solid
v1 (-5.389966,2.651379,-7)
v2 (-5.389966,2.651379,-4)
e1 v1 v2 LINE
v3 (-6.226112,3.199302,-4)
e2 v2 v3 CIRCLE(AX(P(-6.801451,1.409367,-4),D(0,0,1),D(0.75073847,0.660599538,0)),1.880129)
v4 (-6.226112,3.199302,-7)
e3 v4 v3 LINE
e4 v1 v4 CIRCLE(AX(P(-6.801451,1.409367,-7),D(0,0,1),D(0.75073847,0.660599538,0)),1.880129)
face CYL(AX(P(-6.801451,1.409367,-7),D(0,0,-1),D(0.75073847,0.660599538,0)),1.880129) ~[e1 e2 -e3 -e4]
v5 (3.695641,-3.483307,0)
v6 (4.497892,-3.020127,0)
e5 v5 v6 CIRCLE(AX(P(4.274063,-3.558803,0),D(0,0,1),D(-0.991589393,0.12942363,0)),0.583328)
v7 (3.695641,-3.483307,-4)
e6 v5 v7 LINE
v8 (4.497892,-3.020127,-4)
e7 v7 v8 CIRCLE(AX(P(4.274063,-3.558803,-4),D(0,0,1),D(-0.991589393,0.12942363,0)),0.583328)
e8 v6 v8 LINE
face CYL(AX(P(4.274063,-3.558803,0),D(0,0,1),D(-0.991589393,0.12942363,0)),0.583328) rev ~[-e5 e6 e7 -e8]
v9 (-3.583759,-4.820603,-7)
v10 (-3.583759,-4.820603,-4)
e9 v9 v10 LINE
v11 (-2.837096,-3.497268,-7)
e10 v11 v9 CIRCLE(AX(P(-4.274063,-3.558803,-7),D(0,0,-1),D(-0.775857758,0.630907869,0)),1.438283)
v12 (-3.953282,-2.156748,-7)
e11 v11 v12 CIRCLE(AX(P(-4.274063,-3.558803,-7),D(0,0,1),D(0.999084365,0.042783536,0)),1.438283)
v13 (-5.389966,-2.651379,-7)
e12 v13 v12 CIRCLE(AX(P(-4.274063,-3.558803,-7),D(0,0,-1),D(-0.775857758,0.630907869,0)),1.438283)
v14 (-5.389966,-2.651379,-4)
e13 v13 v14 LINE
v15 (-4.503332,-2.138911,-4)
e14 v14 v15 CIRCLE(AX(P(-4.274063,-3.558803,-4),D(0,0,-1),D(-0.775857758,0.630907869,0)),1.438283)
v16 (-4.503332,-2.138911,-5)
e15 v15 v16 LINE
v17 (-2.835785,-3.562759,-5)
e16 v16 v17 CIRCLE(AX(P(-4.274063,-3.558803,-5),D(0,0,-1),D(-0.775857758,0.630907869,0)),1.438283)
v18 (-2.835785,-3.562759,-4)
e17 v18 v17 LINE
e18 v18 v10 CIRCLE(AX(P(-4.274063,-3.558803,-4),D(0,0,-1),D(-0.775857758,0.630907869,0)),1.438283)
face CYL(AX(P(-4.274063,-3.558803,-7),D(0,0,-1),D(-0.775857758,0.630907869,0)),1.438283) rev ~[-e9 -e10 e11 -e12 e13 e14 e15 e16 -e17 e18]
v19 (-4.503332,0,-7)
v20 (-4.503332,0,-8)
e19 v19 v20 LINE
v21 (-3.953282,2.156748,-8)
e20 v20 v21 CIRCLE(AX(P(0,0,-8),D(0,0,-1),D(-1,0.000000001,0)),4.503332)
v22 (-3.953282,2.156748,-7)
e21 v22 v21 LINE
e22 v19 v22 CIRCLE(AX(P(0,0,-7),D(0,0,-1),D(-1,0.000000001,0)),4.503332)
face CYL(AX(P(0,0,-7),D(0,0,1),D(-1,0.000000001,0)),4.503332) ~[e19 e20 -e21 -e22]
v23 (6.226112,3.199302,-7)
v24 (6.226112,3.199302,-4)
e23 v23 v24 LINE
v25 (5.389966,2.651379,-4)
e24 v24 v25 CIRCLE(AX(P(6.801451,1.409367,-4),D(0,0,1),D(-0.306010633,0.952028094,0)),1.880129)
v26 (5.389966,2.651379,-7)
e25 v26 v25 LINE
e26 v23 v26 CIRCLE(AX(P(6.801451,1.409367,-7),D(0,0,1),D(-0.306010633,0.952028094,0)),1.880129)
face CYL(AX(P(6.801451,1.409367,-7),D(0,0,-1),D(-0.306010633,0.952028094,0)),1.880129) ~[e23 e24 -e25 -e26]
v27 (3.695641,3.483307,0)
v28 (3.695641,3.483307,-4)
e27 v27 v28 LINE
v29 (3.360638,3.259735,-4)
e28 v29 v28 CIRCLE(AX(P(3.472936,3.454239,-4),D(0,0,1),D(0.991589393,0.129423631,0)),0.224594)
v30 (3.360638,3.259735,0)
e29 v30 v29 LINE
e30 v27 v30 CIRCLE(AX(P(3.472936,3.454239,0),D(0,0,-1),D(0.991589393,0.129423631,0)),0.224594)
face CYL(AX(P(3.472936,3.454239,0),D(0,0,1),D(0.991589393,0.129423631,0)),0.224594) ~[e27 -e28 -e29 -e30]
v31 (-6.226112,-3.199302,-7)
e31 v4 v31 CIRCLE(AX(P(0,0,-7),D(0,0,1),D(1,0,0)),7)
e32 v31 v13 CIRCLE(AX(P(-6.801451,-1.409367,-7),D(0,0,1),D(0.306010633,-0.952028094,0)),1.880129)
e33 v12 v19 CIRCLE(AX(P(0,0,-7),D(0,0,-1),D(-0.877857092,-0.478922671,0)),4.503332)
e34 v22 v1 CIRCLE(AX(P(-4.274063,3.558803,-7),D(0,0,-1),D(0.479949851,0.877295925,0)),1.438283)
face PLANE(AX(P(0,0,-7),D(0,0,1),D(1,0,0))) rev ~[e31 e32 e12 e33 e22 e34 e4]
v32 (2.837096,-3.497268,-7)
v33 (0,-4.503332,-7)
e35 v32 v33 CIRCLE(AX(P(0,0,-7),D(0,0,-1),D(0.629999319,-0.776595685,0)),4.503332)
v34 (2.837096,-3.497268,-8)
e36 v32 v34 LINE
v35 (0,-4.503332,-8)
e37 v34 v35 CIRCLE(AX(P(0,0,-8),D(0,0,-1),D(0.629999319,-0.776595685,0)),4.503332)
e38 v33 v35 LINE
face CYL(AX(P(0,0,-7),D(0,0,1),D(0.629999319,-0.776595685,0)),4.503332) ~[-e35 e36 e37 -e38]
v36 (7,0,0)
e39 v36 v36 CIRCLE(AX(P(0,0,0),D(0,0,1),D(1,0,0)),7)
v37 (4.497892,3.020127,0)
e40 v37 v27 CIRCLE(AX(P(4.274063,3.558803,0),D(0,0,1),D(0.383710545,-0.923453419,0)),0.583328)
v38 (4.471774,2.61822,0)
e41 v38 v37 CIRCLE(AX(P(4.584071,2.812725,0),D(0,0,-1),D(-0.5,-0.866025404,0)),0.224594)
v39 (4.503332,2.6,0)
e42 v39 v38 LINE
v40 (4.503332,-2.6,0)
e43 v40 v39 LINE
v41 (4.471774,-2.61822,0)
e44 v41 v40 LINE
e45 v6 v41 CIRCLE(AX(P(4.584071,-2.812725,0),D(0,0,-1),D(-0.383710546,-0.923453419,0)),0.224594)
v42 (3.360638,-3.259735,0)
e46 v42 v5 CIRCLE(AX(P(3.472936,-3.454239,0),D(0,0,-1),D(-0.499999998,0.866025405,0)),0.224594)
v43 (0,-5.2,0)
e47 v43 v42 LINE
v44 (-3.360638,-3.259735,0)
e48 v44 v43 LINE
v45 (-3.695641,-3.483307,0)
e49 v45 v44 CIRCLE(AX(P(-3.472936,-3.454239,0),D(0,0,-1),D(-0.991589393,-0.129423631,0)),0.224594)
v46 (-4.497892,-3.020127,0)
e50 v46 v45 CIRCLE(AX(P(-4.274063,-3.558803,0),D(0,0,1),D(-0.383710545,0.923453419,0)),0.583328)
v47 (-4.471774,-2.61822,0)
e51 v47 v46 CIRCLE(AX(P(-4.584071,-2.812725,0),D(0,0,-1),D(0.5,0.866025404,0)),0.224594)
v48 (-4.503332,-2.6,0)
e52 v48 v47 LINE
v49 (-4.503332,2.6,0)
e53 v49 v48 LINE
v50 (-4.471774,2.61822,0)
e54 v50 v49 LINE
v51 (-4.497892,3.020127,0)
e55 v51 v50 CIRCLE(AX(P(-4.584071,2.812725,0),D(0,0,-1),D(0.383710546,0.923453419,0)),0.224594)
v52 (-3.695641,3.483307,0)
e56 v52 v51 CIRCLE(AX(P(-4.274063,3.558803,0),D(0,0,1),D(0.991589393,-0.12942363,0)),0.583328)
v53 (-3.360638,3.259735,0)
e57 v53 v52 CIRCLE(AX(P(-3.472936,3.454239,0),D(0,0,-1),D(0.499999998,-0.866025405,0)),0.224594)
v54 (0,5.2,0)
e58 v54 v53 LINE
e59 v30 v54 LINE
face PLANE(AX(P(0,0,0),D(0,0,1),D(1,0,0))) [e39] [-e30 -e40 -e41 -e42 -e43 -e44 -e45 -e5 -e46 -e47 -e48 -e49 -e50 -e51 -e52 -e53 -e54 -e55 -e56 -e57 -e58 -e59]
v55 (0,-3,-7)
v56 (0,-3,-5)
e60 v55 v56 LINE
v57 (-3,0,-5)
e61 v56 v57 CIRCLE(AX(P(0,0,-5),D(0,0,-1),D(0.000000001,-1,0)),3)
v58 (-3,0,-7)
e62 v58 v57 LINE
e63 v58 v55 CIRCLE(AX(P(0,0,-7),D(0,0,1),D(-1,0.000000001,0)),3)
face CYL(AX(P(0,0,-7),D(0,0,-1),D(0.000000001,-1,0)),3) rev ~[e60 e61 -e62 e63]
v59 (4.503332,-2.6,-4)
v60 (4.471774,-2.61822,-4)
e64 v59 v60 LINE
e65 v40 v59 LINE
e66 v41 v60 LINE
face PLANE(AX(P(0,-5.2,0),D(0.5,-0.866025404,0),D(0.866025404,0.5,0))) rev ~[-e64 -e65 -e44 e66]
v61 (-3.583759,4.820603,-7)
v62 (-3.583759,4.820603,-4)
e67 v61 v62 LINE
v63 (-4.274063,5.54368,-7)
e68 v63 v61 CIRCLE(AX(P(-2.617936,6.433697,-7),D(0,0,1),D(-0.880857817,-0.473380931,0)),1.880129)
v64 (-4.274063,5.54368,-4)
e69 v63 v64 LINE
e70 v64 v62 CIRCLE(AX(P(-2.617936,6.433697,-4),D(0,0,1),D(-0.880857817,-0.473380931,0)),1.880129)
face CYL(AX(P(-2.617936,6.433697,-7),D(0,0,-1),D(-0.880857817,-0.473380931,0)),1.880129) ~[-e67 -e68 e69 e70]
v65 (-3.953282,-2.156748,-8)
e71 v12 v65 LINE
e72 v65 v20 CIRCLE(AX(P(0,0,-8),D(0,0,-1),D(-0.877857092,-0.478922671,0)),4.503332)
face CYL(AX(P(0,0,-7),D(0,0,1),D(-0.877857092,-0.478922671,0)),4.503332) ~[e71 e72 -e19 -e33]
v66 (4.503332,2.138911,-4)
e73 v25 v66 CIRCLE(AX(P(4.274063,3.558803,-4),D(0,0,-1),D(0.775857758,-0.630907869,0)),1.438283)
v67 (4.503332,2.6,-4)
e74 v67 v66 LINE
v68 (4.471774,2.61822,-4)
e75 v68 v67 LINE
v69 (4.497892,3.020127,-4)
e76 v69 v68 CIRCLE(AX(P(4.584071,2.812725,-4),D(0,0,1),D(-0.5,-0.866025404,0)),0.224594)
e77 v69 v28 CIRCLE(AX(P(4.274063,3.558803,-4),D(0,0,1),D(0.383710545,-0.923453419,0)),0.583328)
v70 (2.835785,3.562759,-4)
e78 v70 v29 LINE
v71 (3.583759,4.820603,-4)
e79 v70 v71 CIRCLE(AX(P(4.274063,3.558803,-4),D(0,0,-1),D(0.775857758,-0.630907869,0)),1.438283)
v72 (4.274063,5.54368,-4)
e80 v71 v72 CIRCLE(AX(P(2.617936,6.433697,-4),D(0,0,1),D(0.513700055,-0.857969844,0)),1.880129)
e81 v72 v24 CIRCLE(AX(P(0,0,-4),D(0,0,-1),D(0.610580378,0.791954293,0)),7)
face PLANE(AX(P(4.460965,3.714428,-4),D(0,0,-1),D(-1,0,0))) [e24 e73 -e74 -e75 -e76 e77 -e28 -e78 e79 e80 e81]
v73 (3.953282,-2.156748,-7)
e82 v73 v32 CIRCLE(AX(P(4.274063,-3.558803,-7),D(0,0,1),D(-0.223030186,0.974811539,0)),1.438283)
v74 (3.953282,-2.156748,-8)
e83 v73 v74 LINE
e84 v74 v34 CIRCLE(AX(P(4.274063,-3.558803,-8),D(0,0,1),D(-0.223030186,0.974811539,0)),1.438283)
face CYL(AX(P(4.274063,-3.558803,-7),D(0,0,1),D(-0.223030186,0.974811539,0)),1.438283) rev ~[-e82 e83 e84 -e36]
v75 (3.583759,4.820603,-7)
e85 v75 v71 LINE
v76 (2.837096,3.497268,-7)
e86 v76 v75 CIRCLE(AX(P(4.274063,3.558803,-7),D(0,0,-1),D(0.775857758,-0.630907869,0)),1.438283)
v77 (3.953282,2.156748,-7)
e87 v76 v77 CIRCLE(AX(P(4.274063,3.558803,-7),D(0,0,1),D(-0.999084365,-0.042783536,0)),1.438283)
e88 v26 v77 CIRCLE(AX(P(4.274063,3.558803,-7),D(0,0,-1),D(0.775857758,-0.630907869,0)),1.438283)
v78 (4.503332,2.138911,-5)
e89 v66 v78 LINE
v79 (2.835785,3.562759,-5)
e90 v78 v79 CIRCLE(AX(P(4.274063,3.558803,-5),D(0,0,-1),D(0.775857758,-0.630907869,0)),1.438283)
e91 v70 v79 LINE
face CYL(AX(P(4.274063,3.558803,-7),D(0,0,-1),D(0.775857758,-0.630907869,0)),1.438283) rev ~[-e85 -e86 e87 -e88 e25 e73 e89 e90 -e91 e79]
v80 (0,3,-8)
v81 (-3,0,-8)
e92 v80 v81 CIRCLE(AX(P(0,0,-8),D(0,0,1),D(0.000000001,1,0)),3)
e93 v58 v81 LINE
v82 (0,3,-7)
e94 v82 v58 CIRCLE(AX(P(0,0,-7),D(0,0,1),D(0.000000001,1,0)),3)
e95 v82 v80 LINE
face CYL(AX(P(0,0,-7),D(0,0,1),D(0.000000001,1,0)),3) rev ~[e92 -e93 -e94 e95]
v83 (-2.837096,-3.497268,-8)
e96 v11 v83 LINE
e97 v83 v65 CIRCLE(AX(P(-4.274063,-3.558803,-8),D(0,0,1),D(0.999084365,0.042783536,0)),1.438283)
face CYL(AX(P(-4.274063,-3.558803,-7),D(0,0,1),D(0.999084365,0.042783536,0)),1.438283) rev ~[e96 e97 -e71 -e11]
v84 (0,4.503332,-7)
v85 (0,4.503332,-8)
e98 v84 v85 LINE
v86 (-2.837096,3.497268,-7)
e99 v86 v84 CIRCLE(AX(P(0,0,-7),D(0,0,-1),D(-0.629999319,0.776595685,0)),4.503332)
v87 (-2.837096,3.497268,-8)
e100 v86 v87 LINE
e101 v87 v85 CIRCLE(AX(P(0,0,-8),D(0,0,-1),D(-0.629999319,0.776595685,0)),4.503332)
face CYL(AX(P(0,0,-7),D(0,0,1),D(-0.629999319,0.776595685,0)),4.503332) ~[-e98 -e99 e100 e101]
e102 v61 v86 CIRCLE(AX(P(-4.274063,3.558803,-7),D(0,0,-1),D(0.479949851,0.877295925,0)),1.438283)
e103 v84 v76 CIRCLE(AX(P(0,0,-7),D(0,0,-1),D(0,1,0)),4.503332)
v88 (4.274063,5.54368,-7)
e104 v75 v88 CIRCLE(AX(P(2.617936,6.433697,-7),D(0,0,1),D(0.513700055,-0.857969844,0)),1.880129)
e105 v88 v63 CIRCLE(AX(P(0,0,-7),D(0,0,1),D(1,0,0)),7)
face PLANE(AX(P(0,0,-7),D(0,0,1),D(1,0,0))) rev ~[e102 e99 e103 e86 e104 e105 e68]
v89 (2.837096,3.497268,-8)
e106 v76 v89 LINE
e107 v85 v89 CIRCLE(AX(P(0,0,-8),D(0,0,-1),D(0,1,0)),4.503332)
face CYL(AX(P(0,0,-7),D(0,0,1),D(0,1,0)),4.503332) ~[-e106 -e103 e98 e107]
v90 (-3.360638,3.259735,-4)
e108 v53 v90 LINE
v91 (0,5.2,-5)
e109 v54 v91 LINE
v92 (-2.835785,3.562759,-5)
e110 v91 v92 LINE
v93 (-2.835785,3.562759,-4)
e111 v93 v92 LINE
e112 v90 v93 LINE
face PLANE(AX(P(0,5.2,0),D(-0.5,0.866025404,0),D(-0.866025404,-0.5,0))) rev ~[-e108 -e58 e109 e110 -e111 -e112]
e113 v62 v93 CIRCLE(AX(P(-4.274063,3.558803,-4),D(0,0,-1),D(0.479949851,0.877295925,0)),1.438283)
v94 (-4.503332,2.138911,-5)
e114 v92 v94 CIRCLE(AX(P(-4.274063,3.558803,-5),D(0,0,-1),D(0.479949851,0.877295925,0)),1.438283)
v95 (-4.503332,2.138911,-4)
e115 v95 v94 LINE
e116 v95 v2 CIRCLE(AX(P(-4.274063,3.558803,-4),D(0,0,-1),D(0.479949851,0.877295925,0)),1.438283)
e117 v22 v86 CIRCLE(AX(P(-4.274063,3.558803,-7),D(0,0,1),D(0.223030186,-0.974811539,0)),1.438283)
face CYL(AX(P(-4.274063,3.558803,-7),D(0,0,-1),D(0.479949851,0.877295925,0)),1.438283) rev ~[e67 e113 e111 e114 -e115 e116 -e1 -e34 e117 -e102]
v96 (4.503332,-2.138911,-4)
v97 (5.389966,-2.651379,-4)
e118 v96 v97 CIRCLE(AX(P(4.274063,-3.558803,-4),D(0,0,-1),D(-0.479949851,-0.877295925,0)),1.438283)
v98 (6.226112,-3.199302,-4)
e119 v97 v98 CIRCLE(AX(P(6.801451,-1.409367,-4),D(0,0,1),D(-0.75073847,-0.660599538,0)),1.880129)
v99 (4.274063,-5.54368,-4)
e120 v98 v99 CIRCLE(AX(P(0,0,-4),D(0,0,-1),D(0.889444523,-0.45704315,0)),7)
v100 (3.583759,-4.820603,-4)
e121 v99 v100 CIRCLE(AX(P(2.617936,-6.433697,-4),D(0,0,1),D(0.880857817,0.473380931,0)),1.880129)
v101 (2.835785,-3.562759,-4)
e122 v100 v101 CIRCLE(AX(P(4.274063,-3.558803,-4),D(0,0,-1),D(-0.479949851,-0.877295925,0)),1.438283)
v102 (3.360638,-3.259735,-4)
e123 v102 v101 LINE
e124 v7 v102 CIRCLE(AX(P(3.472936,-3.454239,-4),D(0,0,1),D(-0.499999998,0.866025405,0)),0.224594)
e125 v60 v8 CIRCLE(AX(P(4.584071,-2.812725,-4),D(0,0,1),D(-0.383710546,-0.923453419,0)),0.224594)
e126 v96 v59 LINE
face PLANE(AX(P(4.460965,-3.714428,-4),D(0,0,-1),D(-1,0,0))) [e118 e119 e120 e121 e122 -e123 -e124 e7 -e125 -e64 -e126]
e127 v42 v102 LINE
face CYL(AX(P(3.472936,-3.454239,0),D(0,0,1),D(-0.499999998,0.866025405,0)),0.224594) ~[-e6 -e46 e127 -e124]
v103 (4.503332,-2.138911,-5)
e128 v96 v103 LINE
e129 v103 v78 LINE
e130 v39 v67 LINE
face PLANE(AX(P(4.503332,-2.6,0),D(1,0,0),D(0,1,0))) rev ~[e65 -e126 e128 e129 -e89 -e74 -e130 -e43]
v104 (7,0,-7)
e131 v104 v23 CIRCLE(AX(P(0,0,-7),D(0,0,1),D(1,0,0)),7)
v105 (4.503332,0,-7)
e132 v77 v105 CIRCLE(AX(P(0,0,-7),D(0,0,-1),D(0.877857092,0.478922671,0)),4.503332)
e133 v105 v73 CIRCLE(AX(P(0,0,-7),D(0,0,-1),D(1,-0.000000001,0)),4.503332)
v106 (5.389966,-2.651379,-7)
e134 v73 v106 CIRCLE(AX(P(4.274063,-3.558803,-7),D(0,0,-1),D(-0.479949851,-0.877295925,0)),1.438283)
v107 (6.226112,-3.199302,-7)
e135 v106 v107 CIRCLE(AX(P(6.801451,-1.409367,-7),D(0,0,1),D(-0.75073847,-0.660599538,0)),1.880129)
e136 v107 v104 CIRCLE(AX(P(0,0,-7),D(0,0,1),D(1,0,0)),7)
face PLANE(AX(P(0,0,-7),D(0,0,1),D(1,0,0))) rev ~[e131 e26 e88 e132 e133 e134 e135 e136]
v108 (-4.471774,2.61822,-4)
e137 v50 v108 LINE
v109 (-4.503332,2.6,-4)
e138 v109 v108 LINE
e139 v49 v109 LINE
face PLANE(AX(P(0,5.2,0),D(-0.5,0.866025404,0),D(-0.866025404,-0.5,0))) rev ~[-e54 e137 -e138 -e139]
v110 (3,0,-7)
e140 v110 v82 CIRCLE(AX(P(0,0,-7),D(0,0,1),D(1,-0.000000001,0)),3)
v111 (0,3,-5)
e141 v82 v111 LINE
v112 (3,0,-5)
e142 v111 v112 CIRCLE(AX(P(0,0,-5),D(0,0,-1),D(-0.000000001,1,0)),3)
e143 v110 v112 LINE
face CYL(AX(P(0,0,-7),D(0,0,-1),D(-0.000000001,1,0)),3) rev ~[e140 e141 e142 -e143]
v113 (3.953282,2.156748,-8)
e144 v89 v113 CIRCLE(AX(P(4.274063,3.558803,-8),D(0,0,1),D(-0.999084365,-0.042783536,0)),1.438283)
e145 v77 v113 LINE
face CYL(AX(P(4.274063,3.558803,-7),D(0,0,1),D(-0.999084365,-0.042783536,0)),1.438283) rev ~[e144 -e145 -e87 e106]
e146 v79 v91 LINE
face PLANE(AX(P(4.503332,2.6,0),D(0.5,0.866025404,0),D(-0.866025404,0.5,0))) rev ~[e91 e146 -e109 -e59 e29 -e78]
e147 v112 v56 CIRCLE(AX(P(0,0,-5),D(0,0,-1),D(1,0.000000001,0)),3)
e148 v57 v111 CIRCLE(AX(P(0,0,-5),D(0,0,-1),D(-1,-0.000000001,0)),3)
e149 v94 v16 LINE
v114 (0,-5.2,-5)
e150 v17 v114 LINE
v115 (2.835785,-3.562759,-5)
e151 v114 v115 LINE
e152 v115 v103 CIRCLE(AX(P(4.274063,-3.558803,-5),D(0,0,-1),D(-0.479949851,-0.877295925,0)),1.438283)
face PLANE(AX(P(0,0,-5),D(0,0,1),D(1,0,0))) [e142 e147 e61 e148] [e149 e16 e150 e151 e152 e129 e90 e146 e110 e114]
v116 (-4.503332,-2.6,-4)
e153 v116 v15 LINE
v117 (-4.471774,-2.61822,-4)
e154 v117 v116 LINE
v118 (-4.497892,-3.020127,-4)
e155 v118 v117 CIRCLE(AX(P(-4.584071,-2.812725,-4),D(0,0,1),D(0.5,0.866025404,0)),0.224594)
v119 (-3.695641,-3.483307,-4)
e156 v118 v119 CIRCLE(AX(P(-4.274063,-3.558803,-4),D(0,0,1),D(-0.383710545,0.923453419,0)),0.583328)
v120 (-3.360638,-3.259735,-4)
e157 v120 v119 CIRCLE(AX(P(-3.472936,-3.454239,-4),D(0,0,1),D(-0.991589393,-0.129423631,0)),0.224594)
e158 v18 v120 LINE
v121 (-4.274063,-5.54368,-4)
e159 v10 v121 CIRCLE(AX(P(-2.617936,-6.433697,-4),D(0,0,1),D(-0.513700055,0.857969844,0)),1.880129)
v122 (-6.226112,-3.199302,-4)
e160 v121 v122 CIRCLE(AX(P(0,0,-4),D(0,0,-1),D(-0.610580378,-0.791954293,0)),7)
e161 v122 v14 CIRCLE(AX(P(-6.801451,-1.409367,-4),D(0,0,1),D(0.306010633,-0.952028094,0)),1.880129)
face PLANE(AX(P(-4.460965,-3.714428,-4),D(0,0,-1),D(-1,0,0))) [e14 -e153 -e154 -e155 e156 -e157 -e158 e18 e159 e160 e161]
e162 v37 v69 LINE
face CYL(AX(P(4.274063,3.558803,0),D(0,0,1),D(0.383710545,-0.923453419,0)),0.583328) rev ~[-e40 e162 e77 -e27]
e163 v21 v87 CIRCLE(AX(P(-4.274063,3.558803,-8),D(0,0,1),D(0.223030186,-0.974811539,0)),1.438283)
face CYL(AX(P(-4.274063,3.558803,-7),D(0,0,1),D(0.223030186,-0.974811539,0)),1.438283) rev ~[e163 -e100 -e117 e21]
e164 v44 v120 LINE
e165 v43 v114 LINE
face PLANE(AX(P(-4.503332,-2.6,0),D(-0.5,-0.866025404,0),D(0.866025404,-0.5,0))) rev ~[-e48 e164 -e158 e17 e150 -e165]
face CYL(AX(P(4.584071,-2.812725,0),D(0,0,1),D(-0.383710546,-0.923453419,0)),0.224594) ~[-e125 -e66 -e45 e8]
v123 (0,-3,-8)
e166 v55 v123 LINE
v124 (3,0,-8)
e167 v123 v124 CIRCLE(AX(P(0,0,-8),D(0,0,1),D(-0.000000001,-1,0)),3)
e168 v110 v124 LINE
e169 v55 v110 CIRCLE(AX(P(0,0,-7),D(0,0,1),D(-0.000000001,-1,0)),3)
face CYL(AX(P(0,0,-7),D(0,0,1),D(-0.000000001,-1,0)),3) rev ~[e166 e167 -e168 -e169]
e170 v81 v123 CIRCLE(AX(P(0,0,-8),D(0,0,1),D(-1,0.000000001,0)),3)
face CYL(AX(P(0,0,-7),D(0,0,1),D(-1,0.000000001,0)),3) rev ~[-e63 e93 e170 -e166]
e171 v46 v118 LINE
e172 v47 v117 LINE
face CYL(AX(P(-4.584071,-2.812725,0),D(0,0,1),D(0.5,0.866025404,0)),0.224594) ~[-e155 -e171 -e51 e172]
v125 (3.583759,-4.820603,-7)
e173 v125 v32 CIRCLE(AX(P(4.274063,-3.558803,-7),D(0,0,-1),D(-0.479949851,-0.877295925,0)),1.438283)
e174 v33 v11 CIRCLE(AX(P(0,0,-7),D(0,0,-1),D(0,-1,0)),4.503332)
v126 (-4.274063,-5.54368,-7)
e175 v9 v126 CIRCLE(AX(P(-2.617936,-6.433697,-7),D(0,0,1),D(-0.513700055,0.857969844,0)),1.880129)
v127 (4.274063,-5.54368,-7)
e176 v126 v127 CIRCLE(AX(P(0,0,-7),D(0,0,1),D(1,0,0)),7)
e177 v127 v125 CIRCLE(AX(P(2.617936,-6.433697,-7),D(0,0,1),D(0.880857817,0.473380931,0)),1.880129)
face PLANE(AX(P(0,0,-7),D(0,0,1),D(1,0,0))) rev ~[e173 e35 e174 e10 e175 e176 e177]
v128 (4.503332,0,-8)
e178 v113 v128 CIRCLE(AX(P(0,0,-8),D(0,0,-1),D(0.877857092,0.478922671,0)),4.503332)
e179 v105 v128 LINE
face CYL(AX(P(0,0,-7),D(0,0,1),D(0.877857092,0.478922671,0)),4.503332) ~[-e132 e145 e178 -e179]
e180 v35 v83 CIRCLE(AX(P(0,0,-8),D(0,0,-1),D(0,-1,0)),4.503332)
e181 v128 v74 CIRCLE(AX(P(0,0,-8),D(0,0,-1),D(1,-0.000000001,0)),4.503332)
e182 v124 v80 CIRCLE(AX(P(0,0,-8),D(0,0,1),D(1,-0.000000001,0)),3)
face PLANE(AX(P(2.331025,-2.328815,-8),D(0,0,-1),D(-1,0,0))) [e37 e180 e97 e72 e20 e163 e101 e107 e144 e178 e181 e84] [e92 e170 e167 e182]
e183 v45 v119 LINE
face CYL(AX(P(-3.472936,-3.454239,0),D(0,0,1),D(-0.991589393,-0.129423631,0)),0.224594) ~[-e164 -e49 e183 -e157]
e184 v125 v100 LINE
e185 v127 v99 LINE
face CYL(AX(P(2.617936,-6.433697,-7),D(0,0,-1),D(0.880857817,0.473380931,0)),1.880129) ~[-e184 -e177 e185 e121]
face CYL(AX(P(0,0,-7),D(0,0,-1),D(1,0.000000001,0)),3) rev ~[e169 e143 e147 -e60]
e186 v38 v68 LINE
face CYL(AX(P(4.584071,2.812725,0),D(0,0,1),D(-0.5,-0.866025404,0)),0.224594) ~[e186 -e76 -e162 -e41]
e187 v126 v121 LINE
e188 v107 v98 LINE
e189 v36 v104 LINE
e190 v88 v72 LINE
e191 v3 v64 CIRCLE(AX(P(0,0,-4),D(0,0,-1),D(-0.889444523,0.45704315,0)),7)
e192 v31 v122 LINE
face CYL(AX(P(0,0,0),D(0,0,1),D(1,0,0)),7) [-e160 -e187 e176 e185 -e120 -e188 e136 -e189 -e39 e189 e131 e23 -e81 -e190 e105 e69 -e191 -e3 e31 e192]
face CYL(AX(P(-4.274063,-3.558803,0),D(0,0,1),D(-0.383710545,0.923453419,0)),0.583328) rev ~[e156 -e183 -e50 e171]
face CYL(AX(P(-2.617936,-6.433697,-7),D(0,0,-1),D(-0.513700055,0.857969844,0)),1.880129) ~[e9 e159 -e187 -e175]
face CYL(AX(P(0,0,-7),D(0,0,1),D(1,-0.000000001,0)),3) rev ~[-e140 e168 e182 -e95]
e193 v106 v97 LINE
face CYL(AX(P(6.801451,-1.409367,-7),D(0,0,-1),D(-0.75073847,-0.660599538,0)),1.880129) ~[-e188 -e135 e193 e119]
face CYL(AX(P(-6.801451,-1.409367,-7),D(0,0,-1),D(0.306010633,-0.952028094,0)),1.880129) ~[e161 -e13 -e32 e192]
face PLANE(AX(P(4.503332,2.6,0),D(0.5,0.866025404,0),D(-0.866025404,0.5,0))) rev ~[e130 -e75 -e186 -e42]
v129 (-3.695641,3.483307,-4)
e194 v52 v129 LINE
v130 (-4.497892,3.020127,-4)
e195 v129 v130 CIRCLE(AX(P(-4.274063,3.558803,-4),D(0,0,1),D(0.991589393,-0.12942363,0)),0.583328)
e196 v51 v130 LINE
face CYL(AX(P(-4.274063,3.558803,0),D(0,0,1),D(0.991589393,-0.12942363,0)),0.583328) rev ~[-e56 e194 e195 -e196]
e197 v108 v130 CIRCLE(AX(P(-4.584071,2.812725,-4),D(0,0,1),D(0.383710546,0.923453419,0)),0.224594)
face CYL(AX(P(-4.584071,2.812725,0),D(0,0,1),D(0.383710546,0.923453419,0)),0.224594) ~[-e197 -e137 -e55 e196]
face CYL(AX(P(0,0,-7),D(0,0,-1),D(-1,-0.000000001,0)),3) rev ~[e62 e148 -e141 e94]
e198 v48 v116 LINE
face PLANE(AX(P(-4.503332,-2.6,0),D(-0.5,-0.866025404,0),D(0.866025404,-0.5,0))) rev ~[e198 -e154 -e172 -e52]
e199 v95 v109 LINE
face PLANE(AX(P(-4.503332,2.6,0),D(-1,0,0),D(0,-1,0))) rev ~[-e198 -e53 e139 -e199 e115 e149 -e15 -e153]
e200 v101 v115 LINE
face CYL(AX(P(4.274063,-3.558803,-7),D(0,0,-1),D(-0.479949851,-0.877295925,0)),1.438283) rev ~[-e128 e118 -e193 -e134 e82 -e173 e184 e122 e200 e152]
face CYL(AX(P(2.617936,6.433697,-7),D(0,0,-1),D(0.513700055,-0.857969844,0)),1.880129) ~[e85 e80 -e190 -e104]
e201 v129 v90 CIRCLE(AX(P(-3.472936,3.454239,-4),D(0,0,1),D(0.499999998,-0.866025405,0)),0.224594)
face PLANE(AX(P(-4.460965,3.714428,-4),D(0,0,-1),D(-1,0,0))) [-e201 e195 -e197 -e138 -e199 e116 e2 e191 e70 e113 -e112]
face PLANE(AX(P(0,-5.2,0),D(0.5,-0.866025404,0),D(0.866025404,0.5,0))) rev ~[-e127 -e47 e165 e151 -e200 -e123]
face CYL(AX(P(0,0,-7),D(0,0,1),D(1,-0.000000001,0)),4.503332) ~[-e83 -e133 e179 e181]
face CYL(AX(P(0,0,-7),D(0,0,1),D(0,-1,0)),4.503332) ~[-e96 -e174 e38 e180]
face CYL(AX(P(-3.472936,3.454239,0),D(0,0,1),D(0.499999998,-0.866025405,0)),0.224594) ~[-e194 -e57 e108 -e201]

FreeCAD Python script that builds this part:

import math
import FreeCAD as App
import Part
import Sketcher
Q = App.Units.Quantity


def add_polygon(sketch, points):
    """Adds a closed chain of lines whose ends are joined by coincident constraints."""
    first, n = sketch.GeometryCount, len(points)
    for a, b in zip(points, points[1:] + points[:1]):
        sketch.addGeometry(Part.LineSegment(App.Vector(*a, 0), App.Vector(*b, 0)), False)
    for i in range(n):
        sketch.addConstraint(Sketcher.Constraint("Coincident", first + i, 2, first + (i + 1) % n, 1))

doc = App.newDocument("Part")
body = doc.addObject("PartDesign::Body", "Body")

sketch1 = doc.addObject("Sketcher::SketchObject", "Sketch")
body.addObject(sketch1)
sketch1.AttachmentSupport = (doc.XY_Plane, [""])
sketch1.MapMode = "FlatFace"
sketch1.addGeometry(Part.Circle(App.Vector(0, 0, 0), App.Vector(0, 0, 1), 7), False)
sketch1.addConstraint([
    Sketcher.Constraint("Coincident", 0, 3, -1, 1),
    Sketcher.Constraint("Diameter", 0, 14.0),
])
pad1 = doc.addObject("PartDesign::Pad", "Pad")
body.addObject(pad1)
pad1.Profile = sketch1
pad1.Length = 7
pad1.Reversed = True

sketch2 = doc.addObject("Sketcher::SketchObject", "Sketch001")
body.addObject(sketch2)
sketch2.AttachmentSupport = (doc.XY_Plane, [""])
sketch2.MapMode = "FlatFace"
sketch2.AttachmentOffset = App.Placement(App.Vector(0, 0, -7), App.Rotation())
sketch2.addGeometry([
    Part.ArcOfCircle(Part.Circle(App.Vector(0, 0, 0), App.Vector(0, 0, 1), 4.503332), math.radians(151.384936), math.radians(180)),
    Part.ArcOfCircle(Part.Circle(App.Vector(-4.274063, 3.558803, 0), App.Vector(0, 0, 1), 1.438283), math.radians(-77.112927), math.radians(-2.452064)),
    Part.ArcOfCircle(Part.Circle(App.Vector(0, 0, 0), App.Vector(0, 0, 1), 4.503332), math.radians(90), math.radians(129.050072)),
    Part.ArcOfCircle(Part.Circle(App.Vector(0, 0, 0), App.Vector(0, 0, 1), 4.503332), math.radians(50.949928), math.radians(90)),
    Part.ArcOfCircle(Part.Circle(App.Vector(4.274063, 3.558803, 0), App.Vector(0, 0, 1), 1.438283), math.radians(-177.547936), math.radians(-102.887073)),
    Part.ArcOfCircle(Part.Circle(App.Vector(0, 0, 0), App.Vector(0, 0, 1), 4.503332), math.radians(0), math.radians(28.615064)),
    Part.ArcOfCircle(Part.Circle(App.Vector(0, 0, 0), App.Vector(0, 0, 1), 4.503332), math.radians(-28.615064), math.radians(0)),
    Part.ArcOfCircle(Part.Circle(App.Vector(4.274063, -3.558803, 0), App.Vector(0, 0, 1), 1.438283), math.radians(102.887073), math.radians(177.547936)),
    Part.ArcOfCircle(Part.Circle(App.Vector(0, 0, 0), App.Vector(0, 0, 1), 4.503332), math.radians(-90), math.radians(-50.949928)),
    Part.ArcOfCircle(Part.Circle(App.Vector(0, 0, 0), App.Vector(0, 0, 1), 4.503332), math.radians(-129.050072), math.radians(-90)),
    Part.ArcOfCircle(Part.Circle(App.Vector(-4.274063, -3.558803, 0), App.Vector(0, 0, 1), 1.438283), math.radians(2.452064), math.radians(77.112927)),
    Part.ArcOfCircle(Part.Circle(App.Vector(0, 0, 0), App.Vector(0, 0, 1), 4.503332), math.radians(-180), math.radians(-151.384936)),
    Part.ArcOfCircle(Part.Circle(App.Vector(0, 0, 0), App.Vector(0, 0, 1), 3), math.radians(-90), math.radians(0)),
    Part.ArcOfCircle(Part.Circle(App.Vector(0, 0, 0), App.Vector(0, 0, 1), 3), math.radians(0), math.radians(90)),
    Part.ArcOfCircle(Part.Circle(App.Vector(0, 0, 0), App.Vector(0, 0, 1), 3), math.radians(90), math.radians(180)),
    Part.ArcOfCircle(Part.Circle(App.Vector(0, 0, 0), App.Vector(0, 0, 1), 3), math.radians(180), math.radians(270)),
], False)
sketch2.addConstraint([
    Sketcher.Constraint("Coincident", 0, 1, 1, 1),
    Sketcher.Constraint("Coincident", 1, 2, 2, 2),
    Sketcher.Constraint("Tangent", 2, 1, 3, 2),
    Sketcher.Constraint("Coincident", 3, 1, 4, 1),
    Sketcher.Constraint("Coincident", 4, 2, 5, 2),
    Sketcher.Constraint("Tangent", 5, 1, 6, 2),
    Sketcher.Constraint("Coincident", 6, 1, 7, 1),
    Sketcher.Constraint("Coincident", 7, 2, 8, 2),
    Sketcher.Constraint("Tangent", 8, 1, 9, 2),
    Sketcher.Constraint("Coincident", 9, 1, 10, 1),
    Sketcher.Constraint("Coincident", 10, 2, 11, 2),
    Sketcher.Constraint("Tangent", 11, 1, 0, 2),
    Sketcher.Constraint("Tangent", 12, 2, 13, 1),
    Sketcher.Constraint("Tangent", 13, 2, 14, 1),
    Sketcher.Constraint("Tangent", 14, 2, 15, 1),
    Sketcher.Constraint("Tangent", 15, 2, 12, 1),
    Sketcher.Constraint("Coincident", 0, 3, -1, 1),
    Sketcher.Constraint("Coincident", 2, 3, -1, 1),
    Sketcher.Constraint("Coincident", 5, 3, -1, 1),
    Sketcher.Constraint("Coincident", 8, 3, -1, 1),
    Sketcher.Constraint("Coincident", 12, 3, -1, 1),
    Sketcher.Constraint("Equal", 0, 2),
    Sketcher.Constraint("Equal", 2, 3),
    Sketcher.Constraint("Equal", 1, 4),
    Sketcher.Constraint("Equal", 3, 5),
    Sketcher.Constraint("Equal", 5, 6),
    Sketcher.Constraint("Equal", 4, 7),
    Sketcher.Constraint("Equal", 6, 8),
    Sketcher.Constraint("Equal", 8, 9),
    Sketcher.Constraint("Equal", 7, 10),
    Sketcher.Constraint("Equal", 9, 11),
    Sketcher.Constraint("Equal", 12, 13),
    Sketcher.Constraint("Symmetric", 1, 3, 7, 3, -1, 1),
    Sketcher.Constraint("Symmetric", 4, 3, 10, 3, -1, 1),
    Sketcher.Constraint("Symmetric", 1, 3, 4, 3, -2),
    Sketcher.Constraint("PointOnObject", 2, 1, -2),
    Sketcher.Constraint("PointOnObject", 5, 1, -1),
    Sketcher.Constraint("PointOnObject", 8, 1, -2),
    Sketcher.Constraint("PointOnObject", 11, 1, -1),
    Sketcher.Constraint("PointOnObject", 12, 2, -1),
    Sketcher.Constraint("PointOnObject", 13, 2, -2),
    Sketcher.Constraint("PointOnObject", 14, 2, -1),
    Sketcher.Constraint("PointOnObject", 15, 2, -2),
    Sketcher.Constraint("Radius", 12, 3.0),
    Sketcher.Constraint("Radius", 0, 4.503332),
    Sketcher.Constraint("Radius", 1, 1.438283),
    Sketcher.Constraint("DistanceY", -1, 1, 1, 2, 3.497268),
    Sketcher.Constraint("DistanceX", 1, 3, 0, 1, 0.320781),
])
pad2 = doc.addObject("PartDesign::Pad", "Pad001")
body.addObject(pad2)
pad2.Profile = sketch2
pad2.Length = 1
pad2.Reversed = True

sketch3 = doc.addObject("Sketcher::SketchObject", "Sketch002")
body.addObject(sketch3)
sketch3.AttachmentSupport = (doc.XY_Plane, [""])
sketch3.MapMode = "FlatFace"
sketch3.AttachmentOffset = App.Placement(App.Vector(0, 0, -7), App.Rotation())
sketch3.addGeometry([
    Part.ArcOfCircle(Part.Circle(App.Vector(-2.617936, 6.433697, 0), App.Vector(0, 0, 1), 1.880129), math.radians(-151.746015), math.radians(-120.910604)),
    Part.ArcOfCircle(Part.Circle(App.Vector(-4.274063, 3.558803, 0), App.Vector(0, 0, 1), 1.438283), math.radians(-140.882865), math.radians(61.317873)),
    Part.ArcOfCircle(Part.Circle(App.Vector(-6.801451, 1.409367, 0), App.Vector(0, 0, 1), 1.880129), math.radians(41.345613), math.radians(72.181024)),
    Part.ArcOfCircle(Part.Circle(App.Vector(0, 0, 0), App.Vector(0, 0, 1), 7), math.radians(127.63148), math.radians(152.803529)),
    Part.ArcOfCircle(Part.Circle(App.Vector(2.617936, 6.433697, 0), App.Vector(0, 0, 1), 1.880129), math.radians(-59.089396), math.radians(-28.253985)),
    Part.ArcOfCircle(Part.Circle(App.Vector(0, 0, 0), App.Vector(0, 0, 1), 7), math.radians(27.196471), math.radians(52.36852)),
    Part.ArcOfCircle(Part.Circle(App.Vector(6.801451, 1.409367, 0), App.Vector(0, 0, 1), 1.880129), math.radians(107.818976), math.radians(138.654387)),
    Part.ArcOfCircle(Part.Circle(App.Vector(4.274063, 3.558803, 0), App.Vector(0, 0, 1), 1.438283), math.radians(118.682127), math.radians(320.882865)),
    Part.ArcOfCircle(Part.Circle(App.Vector(-6.801451, -1.409367, 0), App.Vector(0, 0, 1), 1.880129), math.radians(-72.181024), math.radians(-41.345613)),
    Part.ArcOfCircle(Part.Circle(App.Vector(-4.274063, -3.558803, 0), App.Vector(0, 0, 1), 1.438283), math.radians(-61.317873), math.radians(140.882865)),
    Part.ArcOfCircle(Part.Circle(App.Vector(-2.617936, -6.433697, 0), App.Vector(0, 0, 1), 1.880129), math.radians(120.910604), math.radians(151.746015)),
    Part.ArcOfCircle(Part.Circle(App.Vector(0, 0, 0), App.Vector(0, 0, 1), 7), math.radians(-152.803529), math.radians(-127.63148)),
    Part.ArcOfCircle(Part.Circle(App.Vector(6.801451, -1.409367, 0), App.Vector(0, 0, 1), 1.880129), math.radians(-138.654387), math.radians(-107.818976)),
    Part.ArcOfCircle(Part.Circle(App.Vector(0, 0, 0), App.Vector(0, 0, 1), 7), math.radians(-52.36852), math.radians(-27.196471)),
    Part.ArcOfCircle(Part.Circle(App.Vector(2.617936, -6.433697, 0), App.Vector(0, 0, 1), 1.880129), math.radians(28.253985), math.radians(59.089396)),
    Part.ArcOfCircle(Part.Circle(App.Vector(4.274063, -3.558803, 0), App.Vector(0, 0, 1), 1.438283), math.radians(39.117135), math.radians(241.317873)),
], False)
sketch3.addConstraint([
    Sketcher.Constraint("Coincident", 0, 2, 1, 2),
    Sketcher.Constraint("Coincident", 1, 1, 2, 1),
    Sketcher.Constraint("Coincident", 2, 2, 3, 2),
    Sketcher.Constraint("Coincident", 3, 1, 0, 1),
    Sketcher.Constraint("Coincident", 4, 2, 5, 2),
    Sketcher.Constraint("Coincident", 5, 1, 6, 1),
    Sketcher.Constraint("Coincident", 6, 2, 7, 2),
    Sketcher.Constraint("Coincident", 7, 1, 4, 1),
    Sketcher.Constraint("Coincident", 8, 2, 9, 2),
    Sketcher.Constraint("Coincident", 9, 1, 10, 1),
    Sketcher.Constraint("Coincident", 10, 2, 11, 2),
    Sketcher.Constraint("Coincident", 11, 1, 8, 1),
    Sketcher.Constraint("Coincident", 12, 2, 13, 2),
    Sketcher.Constraint("Coincident", 13, 1, 14, 1),
    Sketcher.Constraint("Coincident", 14, 2, 15, 2),
    Sketcher.Constraint("Coincident", 15, 1, 12, 1),
    Sketcher.Constraint("Coincident", 3, 3, -1, 1),
    Sketcher.Constraint("Coincident", 5, 3, -1, 1),
    Sketcher.Constraint("Coincident", 11, 3, -1, 1),
    Sketcher.Constraint("Coincident", 13, 3, -1, 1),
    Sketcher.Constraint("Equal", 0, 2),
    Sketcher.Constraint("Equal", 2, 4),
    Sketcher.Constraint("Equal", 3, 5),
    Sketcher.Constraint("Equal", 4, 6),
    Sketcher.Constraint("Equal", 1, 7),
    Sketcher.Constraint("Equal", 6, 8),
    Sketcher.Constraint("Equal", 7, 9),
    Sketcher.Constraint("Equal", 8, 10),
    Sketcher.Constraint("Equal", 5, 11),
    Sketcher.Constraint("Equal", 10, 12),
    Sketcher.Constraint("Equal", 11, 13),
    Sketcher.Constraint("Equal", 12, 14),
    Sketcher.Constraint("Equal", 9, 15),
    Sketcher.Constraint("Symmetric", 6, 3, 8, 3, -1, 1),
    Sketcher.Constraint("Symmetric", 7, 3, 9, 3, -1, 1),
    Sketcher.Constraint("Symmetric", 4, 3, 10, 3, -1, 1),
    Sketcher.Constraint("Symmetric", 2, 3, 12, 3, -1, 1),
    Sketcher.Constraint("Symmetric", 0, 3, 14, 3, -1, 1),
    Sketcher.Constraint("Symmetric", 1, 3, 15, 3, -1, 1),
    Sketcher.Constraint("Symmetric", 0, 3, 4, 3, -2),
    Sketcher.Constraint("Symmetric", 2, 3, 6, 3, -2),
    Sketcher.Constraint("Symmetric", 1, 3, 7, 3, -2),
    Sketcher.Constraint("Vertical", 9, 3, 3, 1),
    Sketcher.Constraint("Radius", 3, 7.0),
    Sketcher.Constraint("Radius", 0, 1.880129),
    Sketcher.Constraint("Radius", 1, 1.438283),
    Sketcher.Constraint("DistanceX", 1, 3, 4, 3, 6.891999),
    Sketcher.Constraint("DistanceY", 1, 3, 0, 2, 1.2618),
    Sketcher.Constraint("DistanceY", 2, 2, 1, 3, 0.359501),
    Sketcher.Constraint("DistanceY", 1, 1, 3, 1, 2.892301),
    Sketcher.Constraint("DistanceX", 2, 3, -1, 1, 6.801451),
])
pocket1 = doc.addObject("PartDesign::Pocket", "Pocket")
body.addObject(pocket1)
pocket1.Profile = sketch3
pocket1.Length = 3
pocket1.Reversed = True

sketch4 = doc.addObject("Sketcher::SketchObject", "Sketch003")
body.addObject(sketch4)
sketch4.AttachmentSupport = (doc.XY_Plane, [""])
sketch4.MapMode = "FlatFace"
add_polygon(sketch4, [(-4.503332, 2.6), (-4.503332, -2.6), (0, -5.2), (4.503332, -2.6), (4.503332, 2.6), (0, 5.2)])
sketch4.addConstraint([
    Sketcher.Constraint("Vertical", 0),
    Sketcher.Constraint("Vertical", 3),
    Sketcher.Constraint("Symmetric", 0, 2, 3, 2, -1, 1),
    Sketcher.Constraint("Symmetric", 1, 2, 4, 2, -1, 1),
    Sketcher.Constraint("PointOnObject", 1, 2, -2),
    Sketcher.Constraint("Parallel", 2, 5),
    Sketcher.Constraint("Horizontal", 0, 2, 2, 2),
    Sketcher.Constraint("Angle", 1, Q("-30 deg")),
    Sketcher.Constraint("DistanceY", 0, 2, 0, 1, 5.2),
    Sketcher.Constraint("Distance", 1, 5.2),
])
pocket2 = doc.addObject("PartDesign::Pocket", "Pocket001")
body.addObject(pocket2)
pocket2.Profile = sketch4
pocket2.Length = 5

sketch5 = doc.addObject("Sketcher::SketchObject", "Sketch004")
body.addObject(sketch5)
sketch5.AttachmentSupport = (doc.XY_Plane, [""])
sketch5.MapMode = "FlatFace"
sketch5.addGeometry([
    Part.ArcOfCircle(Part.Circle(App.Vector(-3.472936, -3.454239, 0), App.Vector(0, 0, 1), 0.224594), math.radians(60), math.radians(187.436287)),
    Part.LineSegment(App.Vector(-3.360638, -3.259735, 0), App.Vector(-4.471774, -2.61822, 0)),
    Part.ArcOfCircle(Part.Circle(App.Vector(-4.584071, -2.812725, 0), App.Vector(0, 0, 1), 0.224594), math.radians(-67.436287), math.radians(60)),
    Part.ArcOfCircle(Part.Circle(App.Vector(-4.274063, -3.558803, 0), App.Vector(0, 0, 1), 0.583328), math.radians(112.563713), math.radians(367.436287)),
    Part.ArcOfCircle(Part.Circle(App.Vector(-4.584071, 2.812725, 0), App.Vector(0, 0, 1), 0.224594), math.radians(-60), math.radians(67.436287)),
    Part.LineSegment(App.Vector(-4.471774, 2.61822, 0), App.Vector(-3.360638, 3.259735, 0)),
    Part.ArcOfCircle(Part.Circle(App.Vector(-3.472936, 3.454239, 0), App.Vector(0, 0, 1), 0.224594), math.radians(172.563713), math.radians(300)),
    Part.ArcOfCircle(Part.Circle(App.Vector(-4.274063, 3.558803, 0), App.Vector(0, 0, 1), 0.583328), math.radians(-7.436287), math.radians(247.436287)),
    Part.LineSegment(App.Vector(3.360638, 3.259735, 0), App.Vector(4.471774, 2.61822, 0)),
    Part.ArcOfCircle(Part.Circle(App.Vector(4.584071, 2.812725, 0), App.Vector(0, 0, 1), 0.224594), math.radians(112.563713), math.radians(240)),
    Part.ArcOfCircle(Part.Circle(App.Vector(4.274063, 3.558803, 0), App.Vector(0, 0, 1), 0.583328), math.radians(-67.436287), math.radians(187.436287)),
    Part.ArcOfCircle(Part.Circle(App.Vector(3.472936, 3.454239, 0), App.Vector(0, 0, 1), 0.224594), math.radians(-120), math.radians(7.436287)),
    Part.LineSegment(App.Vector(4.471774, -2.61822, 0), App.Vector(3.360638, -3.259735, 0)),
    Part.ArcOfCircle(Part.Circle(App.Vector(3.472936, -3.454239, 0), App.Vector(0, 0, 1), 0.224594), math.radians(-7.436287), math.radians(120)),
    Part.ArcOfCircle(Part.Circle(App.Vector(4.274063, -3.558803, 0), App.Vector(0, 0, 1), 0.583328), math.radians(172.563713), math.radians(427.436287)),
    Part.ArcOfCircle(Part.Circle(App.Vector(4.584071, -2.812725, 0), App.Vector(0, 0, 1), 0.224594), math.radians(120), math.radians(247.436287)),
], False)
sketch5.addConstraint([
    Sketcher.Constraint("Tangent", 0, 1, 1, 1),
    Sketcher.Constraint("Tangent", 1, 2, 2, 2),
    Sketcher.Constraint("Tangent", 2, 1, 3, 1),
    Sketcher.Constraint("Tangent", 3, 2, 0, 2),
    Sketcher.Constraint("Tangent", 4, 1, 5, 1),
    Sketcher.Constraint("Tangent", 5, 2, 6, 2),
    Sketcher.Constraint("Tangent", 6, 1, 7, 1),
    Sketcher.Constraint("Tangent", 7, 2, 4, 2),
    Sketcher.Constraint("Tangent", 8, 2, 9, 2),
    Sketcher.Constraint("Tangent", 9, 1, 10, 1),
    Sketcher.Constraint("Tangent", 10, 2, 11, 2),
    Sketcher.Constraint("Tangent", 11, 1, 8, 1),
    Sketcher.Constraint("Tangent", 12, 2, 13, 2),
    Sketcher.Constraint("Tangent", 13, 1, 14, 1),
    Sketcher.Constraint("Tangent", 14, 2, 15, 2),
    Sketcher.Constraint("Tangent", 15, 1, 12, 1),
    Sketcher.Constraint("Equal", 0, 2),
    Sketcher.Constraint("Equal", 2, 4),
    Sketcher.Constraint("Equal", 4, 6),
    Sketcher.Constraint("Equal", 3, 7),
    Sketcher.Constraint("Equal", 6, 9),
    Sketcher.Constraint("Equal", 7, 10),
    Sketcher.Constraint("Equal", 9, 11),
    Sketcher.Constraint("Equal", 11, 13),
    Sketcher.Constraint("Equal", 10, 14),
    Sketcher.Constraint("Equal", 13, 15),
    Sketcher.Constraint("Symmetric", 2, 3, 9, 3, -1, 1),
    Sketcher.Constraint("Symmetric", 0, 3, 11, 3, -1, 1),
    Sketcher.Constraint("Symmetric", 6, 3, 13, 3, -1, 1),
    Sketcher.Constraint("Symmetric", 4, 3, 15, 3, -1, 1),
    Sketcher.Constraint("Symmetric", 4, 3, 9, 3, -2),
    Sketcher.Constraint("Symmetric", 6, 3, 11, 3, -2),
    Sketcher.Constraint("Angle", 1, Q("150 deg")),
    Sketcher.Constraint("Radius", 0, 0.224594),
    Sketcher.Constraint("Radius", 3, 0.583328),
    Sketcher.Constraint("DistanceX", 6, 3, 10, 3, 7.746998),
    Sketcher.Constraint("Distance", 1, 1.283029),
    Sketcher.Constraint("DistanceY", 0, 3, -1, 1, 3.454239),
])
pocket3 = doc.addObject("PartDesign::Pocket", "Pocket002")
body.addObject(pocket3)
pocket3.Profile = sketch5
pocket3.Length = 5

sketch6 = doc.addObject("Sketcher::SketchObject", "Sketch005")
body.addObject(sketch6)
sketch6.AttachmentSupport = (doc.XY_Plane, [""])
sketch6.MapMode = "FlatFace"
sketch6.AttachmentOffset = App.Placement(App.Vector(0, 0, -7), App.Rotation())
sketch6.addGeometry([
    Part.ArcOfCircle(Part.Circle(App.Vector(0, 0, 0), App.Vector(0, 0, 1), 3), math.radians(90), math.radians(180)),
    Part.LineSegment(App.Vector(0, 3, 0), App.Vector(0, 0, 0)),
    Part.LineSegment(App.Vector(0, 0, 0), App.Vector(-3, 0, 0)),
    Part.LineSegment(App.Vector(0, 0, 0), App.Vector(0, 3, 0)),
    Part.ArcOfCircle(Part.Circle(App.Vector(0, 0, 0), App.Vector(0, 0, 1), 3), math.radians(0), math.radians(90)),
    Part.LineSegment(App.Vector(3, 0, 0), App.Vector(0, 0, 0)),
    Part.LineSegment(App.Vector(-3, 0, 0), App.Vector(0, 0, 0)),
    Part.LineSegment(App.Vector(0, 0, 0), App.Vector(0, -3, 0)),
    Part.ArcOfCircle(Part.Circle(App.Vector(0, 0, 0), App.Vector(0, 0, 1), 3), math.radians(180), math.radians(270)),
    Part.LineSegment(App.Vector(0, -3, 0), App.Vector(0, 0, 0)),
    Part.LineSegment(App.Vector(0, 0, 0), App.Vector(3, 0, 0)),
    Part.ArcOfCircle(Part.Circle(App.Vector(0, 0, 0), App.Vector(0, 0, 1), 3), math.radians(-90), math.radians(0)),
], False)
sketch6.addConstraint([
    Sketcher.Constraint("Coincident", 0, 1, 1, 1),
    Sketcher.Constraint("Coincident", 1, 2, 2, 1),
    Sketcher.Constraint("Coincident", 2, 2, 0, 2),
    Sketcher.Constraint("Coincident", 3, 2, 4, 2),
    Sketcher.Constraint("Coincident", 4, 1, 5, 1),
    Sketcher.Constraint("Coincident", 5, 2, 3, 1),
    Sketcher.Constraint("Coincident", 6, 2, 7, 1),
    Sketcher.Constraint("Coincident", 7, 2, 8, 2),
    Sketcher.Constraint("Coincident", 8, 1, 6, 1),
    Sketcher.Constraint("Coincident", 9, 2, 10, 1),
    Sketcher.Constraint("Coincident", 10, 2, 11, 2),
    Sketcher.Constraint("Coincident", 11, 1, 9, 1),
    Sketcher.Constraint("Vertical", 1),
    Sketcher.Constraint("Horizontal", 2),
    Sketcher.Constraint("Vertical", 3),
    Sketcher.Constraint("Horizontal", 5),
    Sketcher.Constraint("Horizontal", 6),
    Sketcher.Constraint("Vertical", 7),
    Sketcher.Constraint("Vertical", 9),
    Sketcher.Constraint("Horizontal", 10),
    Sketcher.Constraint("Coincident", 0, 3, -1, 1),
    Sketcher.Constraint("Coincident", 4, 3, -1, 1),
    Sketcher.Constraint("Coincident", 8, 3, -1, 1),
    Sketcher.Constraint("Coincident", 11, 3, -1, 1),
    Sketcher.Constraint("Coincident", 1, 2, -1, 1),
    Sketcher.Constraint("Coincident", 5, 2, -1, 1),
    Sketcher.Constraint("Coincident", 6, 2, -1, 1),
    Sketcher.Constraint("Coincident", 9, 2, -1, 1),
    Sketcher.Constraint("Equal", 0, 4),
    Sketcher.Constraint("Equal", 4, 8),
    Sketcher.Constraint("Equal", 8, 11),
    Sketcher.Constraint("Radius", 0, 3.0),
])
pocket4 = doc.addObject("PartDesign::Pocket", "Pocket003")
body.addObject(pocket4)
pocket4.Profile = sketch6
pocket4.Type = "ThroughAll"
pocket4.Midplane = True

doc.recompute()
